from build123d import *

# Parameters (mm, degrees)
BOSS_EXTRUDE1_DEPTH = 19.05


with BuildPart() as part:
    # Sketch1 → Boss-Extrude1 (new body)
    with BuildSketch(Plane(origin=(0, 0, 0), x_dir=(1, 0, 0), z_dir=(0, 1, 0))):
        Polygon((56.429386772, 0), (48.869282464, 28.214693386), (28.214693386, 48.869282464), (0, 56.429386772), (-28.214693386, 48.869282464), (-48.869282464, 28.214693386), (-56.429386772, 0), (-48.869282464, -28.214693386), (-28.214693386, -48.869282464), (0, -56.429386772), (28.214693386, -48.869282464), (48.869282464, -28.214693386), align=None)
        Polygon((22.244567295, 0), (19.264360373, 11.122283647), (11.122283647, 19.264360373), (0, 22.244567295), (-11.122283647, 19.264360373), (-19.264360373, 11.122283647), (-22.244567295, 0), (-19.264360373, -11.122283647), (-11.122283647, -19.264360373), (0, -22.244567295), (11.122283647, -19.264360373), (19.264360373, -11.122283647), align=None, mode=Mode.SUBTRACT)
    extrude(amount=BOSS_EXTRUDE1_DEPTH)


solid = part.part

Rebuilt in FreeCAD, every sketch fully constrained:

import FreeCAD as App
import Part
import Sketcher

V = App.Vector
Q = App.Units.Quantity

doc = App.newDocument("Part")
body = doc.addObject("PartDesign::Body", "Body")

sketch1 = doc.addObject("Sketcher::SketchObject", "Sketch")
body.addObject(sketch1)
sketch1.AttachmentSupport = (doc.XZ_Plane, [""])
sketch1.MapMode = "FlatFace"
sketch1.addGeometry(Part.LineSegment(V(56, 0, 0), V(49, -28, 0)), False)
sketch1.addGeometry(Part.LineSegment(V(49, -28, 0), V(28, -49, 0)), False)
sketch1.addGeometry(Part.LineSegment(V(28, -49, 0), V(0, -56, 0)), False)
sketch1.addGeometry(Part.LineSegment(V(0, -56, 0), V(-28, -49, 0)), False)
sketch1.addGeometry(Part.LineSegment(V(-28, -49, 0), V(-49, -28, 0)), False)
sketch1.addGeometry(Part.LineSegment(V(-49, -28, 0), V(-56, 0, 0)), False)
sketch1.addGeometry(Part.LineSegment(V(-56, 0, 0), V(-49, 28, 0)), False)
sketch1.addGeometry(Part.LineSegment(V(-49, 28, 0), V(-28, 49, 0)), False)
sketch1.addGeometry(Part.LineSegment(V(-28, 49, 0), V(0, 56, 0)), False)
sketch1.addGeometry(Part.LineSegment(V(0, 56, 0), V(28, 49, 0)), False)
sketch1.addGeometry(Part.LineSegment(V(28, 49, 0), V(49, 28, 0)), False)
sketch1.addGeometry(Part.LineSegment(V(49, 28, 0), V(56, 0, 0)), False)
sketch1.addGeometry(Part.LineSegment(V(19, -11, 0), V(22, 0, 0)), False)
sketch1.addGeometry(Part.LineSegment(V(22, 0, 0), V(19, 11, 0)), False)
sketch1.addGeometry(Part.LineSegment(V(19, 11, 0), V(11, 19, 0)), False)
sketch1.addGeometry(Part.LineSegment(V(11, 19, 0), V(0, 22, 0)), False)
sketch1.addGeometry(Part.LineSegment(V(0, 22, 0), V(-11, 19, 0)), False)
sketch1.addGeometry(Part.LineSegment(V(-11, 19, 0), V(-19, 11, 0)), False)
sketch1.addGeometry(Part.LineSegment(V(-19, 11, 0), V(-22, 0, 0)), False)
sketch1.addGeometry(Part.LineSegment(V(-22, 0, 0), V(-19, -11, 0)), False)
sketch1.addGeometry(Part.LineSegment(V(-19, -11, 0), V(-11, -19, 0)), False)
sketch1.addGeometry(Part.LineSegment(V(-11, -19, 0), V(0, -22, 0)), False)
sketch1.addGeometry(Part.LineSegment(V(0, -22, 0), V(11, -19, 0)), False)
sketch1.addGeometry(Part.LineSegment(V(11, -19, 0), V(19, -11, 0)), False)
sketch1.addConstraint(Sketcher.Constraint("Coincident", 0, 2, 1, 1))
sketch1.addConstraint(Sketcher.Constraint("Coincident", 1, 2, 2, 1))
sketch1.addConstraint(Sketcher.Constraint("Coincident", 2, 2, 3, 1))
sketch1.addConstraint(Sketcher.Constraint("Coincident", 3, 2, 4, 1))
sketch1.addConstraint(Sketcher.Constraint("Coincident", 4, 2, 5, 1))
sketch1.addConstraint(Sketcher.Constraint("Coincident", 5, 2, 6, 1))
sketch1.addConstraint(Sketcher.Constraint("Coincident", 6, 2, 7, 1))
sketch1.addConstraint(Sketcher.Constraint("Coincident", 7, 2, 8, 1))
sketch1.addConstraint(Sketcher.Constraint("Coincident", 8, 2, 9, 1))
sketch1.addConstraint(Sketcher.Constraint("Coincident", 9, 2, 10, 1))
sketch1.addConstraint(Sketcher.Constraint("Coincident", 10, 2, 11, 1))
sketch1.addConstraint(Sketcher.Constraint("Coincident", 11, 2, 0, 1))
sketch1.addConstraint(Sketcher.Constraint("Coincident", 12, 2, 13, 1))
sketch1.addConstraint(Sketcher.Constraint("Coincident", 13, 2, 14, 1))
sketch1.addConstraint(Sketcher.Constraint("Coincident", 14, 2, 15, 1))
sketch1.addConstraint(Sketcher.Constraint("Coincident", 15, 2, 16, 1))
sketch1.addConstraint(Sketcher.Constraint("Coincident", 16, 2, 17, 1))
sketch1.addConstraint(Sketcher.Constraint("Coincident", 17, 2, 18, 1))
sketch1.addConstraint(Sketcher.Constraint("Coincident", 18, 2, 19, 1))
sketch1.addConstraint(Sketcher.Constraint("Coincident", 19, 2, 20, 1))
sketch1.addConstraint(Sketcher.Constraint("Coincident", 20, 2, 21, 1))
sketch1.addConstraint(Sketcher.Constraint("Coincident", 21, 2, 22, 1))
sketch1.addConstraint(Sketcher.Constraint("Coincident", 22, 2, 23, 1))
sketch1.addConstraint(Sketcher.Constraint("Coincident", 23, 2, 12, 1))
sketch1.addConstraint(Sketcher.Constraint("Symmetric", 0, 2, 6, 2, -1, 1))
sketch1.addConstraint(Sketcher.Constraint("Symmetric", 1, 2, 7, 2, -1, 1))
sketch1.addConstraint(Sketcher.Constraint("Symmetric", 2, 2, 8, 2, -1, 1))
sketch1.addConstraint(Sketcher.Constraint("Symmetric", 3, 2, 9, 2, -1, 1))
sketch1.addConstraint(Sketcher.Constraint("Symmetric", 4, 2, 10, 2, -1, 1))
sketch1.addConstraint(Sketcher.Constraint("Symmetric", 5, 2, 11, 2, -1, 1))
sketch1.addConstraint(Sketcher.Constraint("Symmetric", 12, 2, 18, 2, -1, 1))
sketch1.addConstraint(Sketcher.Constraint("Symmetric", 13, 2, 19, 2, -1, 1))
sketch1.addConstraint(Sketcher.Constraint("Symmetric", 14, 2, 20, 2, -1, 1))
sketch1.addConstraint(Sketcher.Constraint("Symmetric", 15, 2, 21, 2, -1, 1))
sketch1.addConstraint(Sketcher.Constraint("Symmetric", 16, 2, 22, 2, -1, 1))
sketch1.addConstraint(Sketcher.Constraint("Symmetric", 17, 2, 23, 2, -1, 1))
sketch1.addConstraint(Sketcher.Constraint("Symmetric", 1, 2, 3, 2, -2))
sketch1.addConstraint(Sketcher.Constraint("Symmetric", 0, 2, 4, 2, -2))
sketch1.addConstraint(Sketcher.Constraint("Symmetric", 14, 2, 16, 2, -2))
sketch1.addConstraint(Sketcher.Constraint("Symmetric", 13, 2, 17, 2, -2))
sketch1.addConstraint(Sketcher.Constraint("PointOnObject", 2, 2, -2))
sketch1.addConstraint(Sketcher.Constraint("PointOnObject", 5, 2, -1))
sketch1.addConstraint(Sketcher.Constraint("PointOnObject", 12, 2, -1))
sketch1.addConstraint(Sketcher.Constraint("PointOnObject", 15, 2, -2))
sketch1.addConstraint(Sketcher.Constraint("Perpendicular", 0, 3))
sketch1.addConstraint(Sketcher.Constraint("Perpendicular", 1, 4))
sketch1.addConstraint(Sketcher.Constraint("Perpendicular", 9, 12))
sketch1.addConstraint(Sketcher.Constraint("Parallel", 10, 14))
sketch1.addConstraint(Sketcher.Constraint("Perpendicular", 12, 15))
sketch1.addConstraint(Sketcher.Constraint("Equal", 0, 1))
sketch1.addConstraint(Sketcher.Constraint("Equal", 1, 2))
sketch1.addConstraint(Sketcher.Constraint("Equal", 13, 14))
sketch1.addConstraint(Sketcher.Constraint("Equal", 14, 15))
sketch1.addConstraint(Sketcher.Constraint("Angle", 0, Q("-105 deg")))
sketch1.addConstraint(Sketcher.Constraint("Distance", 0, Q("1.15 in")))
sketch1.addConstraint(Sketcher.Constraint("DistanceY", 0, 2, 13, 2, Q("1.5486999 in")))
pad1 = doc.addObject("PartDesign::Pad", "Pad")
body.addObject(pad1)
pad1.Profile = sketch1
pad1.Length = Q("0.75 in")
pad1.Reversed = True

doc.recompute()
